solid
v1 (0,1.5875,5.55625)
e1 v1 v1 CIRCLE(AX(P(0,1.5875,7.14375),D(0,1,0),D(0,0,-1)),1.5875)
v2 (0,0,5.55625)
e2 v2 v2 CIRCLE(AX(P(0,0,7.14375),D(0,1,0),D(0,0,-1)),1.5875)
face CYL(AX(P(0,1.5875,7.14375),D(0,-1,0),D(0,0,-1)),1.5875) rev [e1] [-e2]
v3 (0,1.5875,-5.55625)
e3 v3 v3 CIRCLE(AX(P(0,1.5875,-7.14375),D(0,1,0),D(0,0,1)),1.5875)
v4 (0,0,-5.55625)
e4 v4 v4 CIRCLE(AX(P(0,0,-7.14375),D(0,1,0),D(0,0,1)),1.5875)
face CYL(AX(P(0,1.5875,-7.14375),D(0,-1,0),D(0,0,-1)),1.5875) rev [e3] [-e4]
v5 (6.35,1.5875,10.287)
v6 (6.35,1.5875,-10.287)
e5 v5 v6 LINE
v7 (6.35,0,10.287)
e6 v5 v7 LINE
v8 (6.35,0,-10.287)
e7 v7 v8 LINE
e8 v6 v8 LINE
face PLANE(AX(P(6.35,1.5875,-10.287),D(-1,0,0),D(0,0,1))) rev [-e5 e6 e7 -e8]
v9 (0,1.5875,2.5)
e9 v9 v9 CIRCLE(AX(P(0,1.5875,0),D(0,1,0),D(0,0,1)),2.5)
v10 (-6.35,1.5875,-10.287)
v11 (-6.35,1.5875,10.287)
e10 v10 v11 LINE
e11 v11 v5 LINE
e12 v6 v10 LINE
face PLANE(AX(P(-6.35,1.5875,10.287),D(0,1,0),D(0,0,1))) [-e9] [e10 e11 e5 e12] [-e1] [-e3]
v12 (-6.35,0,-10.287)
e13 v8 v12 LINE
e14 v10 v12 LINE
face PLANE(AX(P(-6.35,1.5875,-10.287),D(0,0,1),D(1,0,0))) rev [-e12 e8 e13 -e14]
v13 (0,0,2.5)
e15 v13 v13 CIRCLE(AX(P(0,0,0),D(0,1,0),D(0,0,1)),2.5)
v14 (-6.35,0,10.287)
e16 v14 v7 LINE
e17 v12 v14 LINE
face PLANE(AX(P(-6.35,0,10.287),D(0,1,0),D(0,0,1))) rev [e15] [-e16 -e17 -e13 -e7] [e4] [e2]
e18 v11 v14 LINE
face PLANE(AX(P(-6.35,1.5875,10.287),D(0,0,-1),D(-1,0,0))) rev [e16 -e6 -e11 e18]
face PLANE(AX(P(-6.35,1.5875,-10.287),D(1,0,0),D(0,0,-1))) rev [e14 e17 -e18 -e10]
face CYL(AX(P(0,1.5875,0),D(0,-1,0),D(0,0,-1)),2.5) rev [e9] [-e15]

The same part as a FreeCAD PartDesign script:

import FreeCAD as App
import Part
import Sketcher
Q = App.Units.Quantity

doc = App.newDocument("Part")
params = doc.addObject("Spreadsheet::Sheet", "Params")
for row, (alias, value) in enumerate([
    ("sketch1_width", "0.5 in"),
    ("sketch1_height", "0.81 in"),
    ("pad1_length", "0.0625 in"),
    ("sketch2_diameter", "0.125 in"),
], start=1):
    params.set(f"A{row}", alias)
    params.set(f"B{row}", "=" + value)
    params.setAlias(f"B{row}", alias)

body = doc.addObject("PartDesign::Body", "Body")

# Sketch on XZ plane
sketch1 = body.newObject("Sketcher::SketchObject", "Sketch")
sketch1.AttachmentSupport = (doc.getObject("XZ_Plane"), [""])
sketch1.MapMode = "FlatFace"
sketch1.addGeometry([
    Part.LineSegment(App.Vector(-6, -10, 0), App.Vector(-6, 10, 0)),
    Part.LineSegment(App.Vector(-6, 10, 0), App.Vector(6, 10, 0)),
    Part.LineSegment(App.Vector(6, 10, 0), App.Vector(6, -10, 0)),
    Part.LineSegment(App.Vector(6, -10, 0), App.Vector(-6, -10, 0)),
], False)
sketch1.addConstraint([
    Sketcher.Constraint("Coincident", 0, 2, 1, 1),
    Sketcher.Constraint("Coincident", 1, 2, 2, 1),
    Sketcher.Constraint("Coincident", 2, 2, 3, 1),
    Sketcher.Constraint("Coincident", 3, 2, 0, 1),
    Sketcher.Constraint("Vertical", 0),
    Sketcher.Constraint("Horizontal", 1),
    Sketcher.Constraint("Vertical", 2),
    Sketcher.Constraint("Horizontal", 3),
    Sketcher.Constraint("Symmetric", 0, 2, 2, 2, -1, 1),
    Sketcher.Constraint("DistanceX", 1, 1, 1, 2, Q("0.5 in")),
    Sketcher.Constraint("DistanceY", 0, 1, 0, 2, Q("0.81 in")),
])
sketch1.setExpression("Constraints[9]", "Params.sketch1_width")
sketch1.setExpression("Constraints[10]", "Params.sketch1_height")
pad1 = body.newObject("PartDesign::Pad", "Pad")
pad1.Profile = sketch1
pad1.setExpression("Length", "Params.pad1_length")
pad1.Reversed = True

# Sketch on XZ plane
sketch2 = body.newObject("Sketcher::SketchObject", "Sketch001")
sketch2.AttachmentSupport = (doc.getObject("XZ_Plane"), [""])
sketch2.MapMode = "FlatFace"
sketch2.addGeometry(Part.Circle(App.Vector(0, -7.1, 0), App.Vector(0, 0, 1), 1.6), False)
sketch2.addConstraint([
    Sketcher.Constraint("PointOnObject", 0, 3, -2),
    Sketcher.Constraint("Diameter", 0, Q("0.125 in")),
    Sketcher.Constraint("DistanceY", 0, 3, -1, 1, Q("0.28125 in")),
])
sketch2.setExpression("Constraints[1]", "Params.sketch2_diameter")
pocket1 = body.newObject("PartDesign::Pocket", "Pocket")
pocket1.Profile = sketch2
pocket1.Type = "ThroughAll"
doc.recompute()

polarpattern = body.newObject("PartDesign::PolarPattern", "PolarPattern")
polarpattern.Originals = [pocket1]
polarpattern.Axis = (doc.getObject("Y_Axis"), [""])
polarpattern.Angle = 360
polarpattern.Occurrences = 2
body.Tip = polarpattern

# Sketch on XZ plane
sketch3 = body.newObject("Sketcher::SketchObject", "Sketch002")
sketch3.AttachmentSupport = (doc.getObject("XZ_Plane"), [""])
sketch3.MapMode = "FlatFace"
sketch3.addGeometry(Part.Circle(App.Vector(0, 0, 0), App.Vector(0, 0, 1), 2.5), False)
sketch3.addConstraint([
    Sketcher.Constraint("Coincident", 0, 3, -1, 1),
    Sketcher.Constraint("Diameter", 0, 5.0),
])
pocket2 = body.newObject("PartDesign::Pocket", "Pocket001")
pocket2.Profile = sketch3
pocket2.Type = "ThroughAll"

doc.recompute()
